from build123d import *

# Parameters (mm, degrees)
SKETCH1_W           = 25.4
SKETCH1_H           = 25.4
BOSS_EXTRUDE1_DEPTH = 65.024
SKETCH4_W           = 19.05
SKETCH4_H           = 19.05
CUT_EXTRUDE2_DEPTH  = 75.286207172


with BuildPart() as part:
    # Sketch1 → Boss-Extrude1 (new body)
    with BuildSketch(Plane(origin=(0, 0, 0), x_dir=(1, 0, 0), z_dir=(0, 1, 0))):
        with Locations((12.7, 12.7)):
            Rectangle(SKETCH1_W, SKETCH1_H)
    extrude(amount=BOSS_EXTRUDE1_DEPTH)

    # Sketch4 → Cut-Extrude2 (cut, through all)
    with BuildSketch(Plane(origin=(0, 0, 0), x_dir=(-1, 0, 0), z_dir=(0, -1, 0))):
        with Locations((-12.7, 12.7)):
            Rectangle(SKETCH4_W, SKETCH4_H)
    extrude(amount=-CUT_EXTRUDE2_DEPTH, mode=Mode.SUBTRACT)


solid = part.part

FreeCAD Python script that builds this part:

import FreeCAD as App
import Part
import Sketcher

V = App.Vector
Q = App.Units.Quantity

doc = App.newDocument("Part")
body = doc.addObject("PartDesign::Body", "Body")

sketch1 = body.newObject("Sketcher::SketchObject", "Sketch")
sketch1.AttachmentSupport = (doc.getObject("XZ_Plane"), [""])
sketch1.MapMode = "FlatFace"
sketch1.addGeometry(Part.LineSegment(V(0, -25, 0), V(0, 0, 0)), False)
sketch1.addGeometry(Part.LineSegment(V(0, 0, 0), V(25, 0, 0)), False)
sketch1.addGeometry(Part.LineSegment(V(25, 0, 0), V(25, -25, 0)), False)
sketch1.addGeometry(Part.LineSegment(V(25, -25, 0), V(0, -25, 0)), False)
sketch1.addConstraint(Sketcher.Constraint("Coincident", 0, 2, 1, 1))
sketch1.addConstraint(Sketcher.Constraint("Coincident", 1, 2, 2, 1))
sketch1.addConstraint(Sketcher.Constraint("Coincident", 2, 2, 3, 1))
sketch1.addConstraint(Sketcher.Constraint("Coincident", 3, 2, 0, 1))
sketch1.addConstraint(Sketcher.Constraint("Vertical", 0))
sketch1.addConstraint(Sketcher.Constraint("Horizontal", 1))
sketch1.addConstraint(Sketcher.Constraint("Vertical", 2))
sketch1.addConstraint(Sketcher.Constraint("Horizontal", 3))
sketch1.addConstraint(Sketcher.Constraint("Coincident", 0, 2, -1, 1))
sketch1.addConstraint(Sketcher.Constraint("Equal", 3, 0))
sketch1.addConstraint(Sketcher.Constraint("DistanceX", 1, 1, 1, 2, Q("1 in")))
pad1 = body.newObject("PartDesign::Pad", "Pad")
pad1.Profile = sketch1
pad1.Length = Q("2.56 in")
pad1.Reversed = True

sketch2 = body.newObject("Sketcher::SketchObject", "Sketch001")
sketch2.AttachmentSupport = (doc.getObject("XZ_Plane"), [""])
sketch2.MapMode = "FlatFace"
sketch2.addGeometry(Part.LineSegment(V(22, -22, 0), V(22, -3, 0)), False)
sketch2.addGeometry(Part.LineSegment(V(22, -3, 0), V(3, -3, 0)), False)
sketch2.addGeometry(Part.LineSegment(V(3, -3, 0), V(3, -22, 0)), False)
sketch2.addGeometry(Part.LineSegment(V(3, -22, 0), V(22, -22, 0)), False)
sketch2.addConstraint(Sketcher.Constraint("Coincident", 0, 2, 1, 1))
sketch2.addConstraint(Sketcher.Constraint("Coincident", 1, 2, 2, 1))
sketch2.addConstraint(Sketcher.Constraint("Coincident", 2, 2, 3, 1))
sketch2.addConstraint(Sketcher.Constraint("Coincident", 3, 2, 0, 1))
sketch2.addConstraint(Sketcher.Constraint("Vertical", 0))
sketch2.addConstraint(Sketcher.Constraint("Horizontal", 1))
sketch2.addConstraint(Sketcher.Constraint("Vertical", 2))
sketch2.addConstraint(Sketcher.Constraint("Horizontal", 3))
sketch2.addConstraint(Sketcher.Constraint("Equal", 3, 0))
sketch2.addConstraint(Sketcher.Constraint("DistanceX", 1, 2, 1, 1, Q("0.75 in")))
sketch2.addConstraint(Sketcher.Constraint("DistanceX", -1, 1, 0, 2, Q("0.875 in")))
sketch2.addConstraint(Sketcher.Constraint("DistanceY", 0, 2, -1, 1, Q("0.125 in")))
pocket1 = body.newObject("PartDesign::Pocket", "Pocket")
pocket1.Profile = sketch2
pocket1.Type = "ThroughAll"

doc.recompute()
